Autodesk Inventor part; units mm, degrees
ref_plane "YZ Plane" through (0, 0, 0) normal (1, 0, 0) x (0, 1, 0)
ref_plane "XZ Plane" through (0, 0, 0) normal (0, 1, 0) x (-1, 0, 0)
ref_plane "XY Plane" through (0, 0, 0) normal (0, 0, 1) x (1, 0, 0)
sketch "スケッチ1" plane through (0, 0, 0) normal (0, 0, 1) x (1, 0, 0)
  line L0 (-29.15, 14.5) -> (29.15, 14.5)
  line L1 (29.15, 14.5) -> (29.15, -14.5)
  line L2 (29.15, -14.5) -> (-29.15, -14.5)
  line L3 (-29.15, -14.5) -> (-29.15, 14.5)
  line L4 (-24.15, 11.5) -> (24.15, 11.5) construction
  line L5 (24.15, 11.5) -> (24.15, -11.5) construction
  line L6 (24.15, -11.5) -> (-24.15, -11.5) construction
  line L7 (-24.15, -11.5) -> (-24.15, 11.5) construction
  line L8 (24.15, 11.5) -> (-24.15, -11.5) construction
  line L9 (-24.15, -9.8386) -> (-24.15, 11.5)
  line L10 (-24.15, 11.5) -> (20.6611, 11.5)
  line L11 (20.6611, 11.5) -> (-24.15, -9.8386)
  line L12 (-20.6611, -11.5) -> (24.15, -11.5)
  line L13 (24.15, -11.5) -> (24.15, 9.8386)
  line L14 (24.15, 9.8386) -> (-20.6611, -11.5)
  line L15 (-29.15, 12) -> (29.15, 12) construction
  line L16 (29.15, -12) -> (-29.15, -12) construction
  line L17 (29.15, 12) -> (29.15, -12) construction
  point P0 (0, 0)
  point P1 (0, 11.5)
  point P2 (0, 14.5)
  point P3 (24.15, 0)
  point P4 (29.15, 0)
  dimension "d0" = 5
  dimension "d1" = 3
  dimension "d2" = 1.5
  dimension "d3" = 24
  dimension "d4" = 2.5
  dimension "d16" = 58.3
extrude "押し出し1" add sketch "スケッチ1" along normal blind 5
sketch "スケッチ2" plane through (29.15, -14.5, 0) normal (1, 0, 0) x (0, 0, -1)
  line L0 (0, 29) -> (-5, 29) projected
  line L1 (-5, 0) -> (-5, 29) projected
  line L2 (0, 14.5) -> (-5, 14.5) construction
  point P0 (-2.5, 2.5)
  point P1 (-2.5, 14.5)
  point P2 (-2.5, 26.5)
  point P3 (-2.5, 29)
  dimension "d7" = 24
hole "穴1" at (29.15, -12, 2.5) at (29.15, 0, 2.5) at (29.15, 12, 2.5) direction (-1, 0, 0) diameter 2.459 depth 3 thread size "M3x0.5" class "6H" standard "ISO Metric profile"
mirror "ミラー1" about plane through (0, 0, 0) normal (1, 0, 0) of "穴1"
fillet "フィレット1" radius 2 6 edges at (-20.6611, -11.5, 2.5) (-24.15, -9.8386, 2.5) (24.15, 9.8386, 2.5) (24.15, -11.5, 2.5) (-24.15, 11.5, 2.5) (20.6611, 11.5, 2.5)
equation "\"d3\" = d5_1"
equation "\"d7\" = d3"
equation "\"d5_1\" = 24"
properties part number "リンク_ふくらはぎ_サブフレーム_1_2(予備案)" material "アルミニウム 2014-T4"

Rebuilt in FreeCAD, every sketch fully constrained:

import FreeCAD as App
import Part
import Sketcher

V = App.Vector


def edges_at(feature, points):
    """Names of the edges that pass closest to the given points."""
    edges = feature.Shape.Edges
    near = lambda p: min(range(len(edges)), key=lambda i: edges[i].distToShape(Part.Vertex(*p))[0])
    return sorted({f"Edge{near(p) + 1}" for p in points})


def add_polygon(sketch, points):
    """Adds a closed chain of lines whose ends are joined by coincident constraints."""
    first, n = sketch.GeometryCount, len(points)
    for a, b in zip(points, points[1:] + points[:1]):
        sketch.addGeometry(Part.LineSegment(App.Vector(*a, 0), App.Vector(*b, 0)), False)
    for i in range(n):
        sketch.addConstraint(Sketcher.Constraint("Coincident", first + i, 2, first + (i + 1) % n, 1))

doc = App.newDocument("Part")
params = doc.addObject("Spreadsheet::Sheet", "Params")
for row, (alias, value) in enumerate([
    ("sketch1_width", "58.3 mm"),
    ("sketch1_height", "29 mm"),
    ("pad1_length", "5 mm"),
    ("hole_diameter", "2.459 mm"),
    ("hole_depth", "3 mm"),
    ("fillet_radius", "2 mm"),
], start=1):
    params.set(f"A{row}", alias)
    params.set(f"B{row}", "=" + value)
    params.setAlias(f"B{row}", alias)

body = doc.addObject("PartDesign::Body", "Body")

# Sketch on XY plane
sketch1 = doc.addObject("Sketcher::SketchObject", "Sketch")
body.addObject(sketch1)
sketch1.AttachmentSupport = (doc.XY_Plane, [""])
sketch1.MapMode = "FlatFace"
add_polygon(sketch1, [(29, 14), (-29, 14), (-29, -14), (29, -14)])  # lines 0-3
add_polygon(sketch1, [(24, -12), (-21, -12), (24, 10)])  # lines 4-6
add_polygon(sketch1, [(21, 12), (-24, -10), (-24, 12)])  # lines 7-9
sketch1.addConstraint(Sketcher.Constraint("Horizontal", 0))
sketch1.addConstraint(Sketcher.Constraint("Vertical", 1))
sketch1.addConstraint(Sketcher.Constraint("Horizontal", 2))
sketch1.addConstraint(Sketcher.Constraint("Vertical", 3))
sketch1.addConstraint(Sketcher.Constraint("Horizontal", 4))
sketch1.addConstraint(Sketcher.Constraint("Vertical", 6))
sketch1.addConstraint(Sketcher.Constraint("Vertical", 8))
sketch1.addConstraint(Sketcher.Constraint("Horizontal", 9))
sketch1.addConstraint(Sketcher.Constraint("Symmetric", 0, 2, 2, 2, -1, 1))
sketch1.addConstraint(Sketcher.Constraint("Symmetric", 5, 2, 7, 2, -1, 1))
sketch1.addConstraint(Sketcher.Constraint("Symmetric", 4, 2, 9, 2, -1, 1))
sketch1.addConstraint(Sketcher.Constraint("DistanceX", 0, 2, 0, 1, 58.3))
sketch1.addConstraint(Sketcher.Constraint("DistanceY", 1, 2, 4, 2, 3.0))
sketch1.addConstraint(Sketcher.Constraint("DistanceX", 5, 2, 3, 2, 5.0))
sketch1.addConstraint(Sketcher.Constraint("DistanceY", 1, 2, 1, 1, 29.0))
sketch1.addConstraint(Sketcher.Constraint("DistanceX", 4, 2, 4, 1, 44.811))
sketch1.addConstraint(Sketcher.Constraint("DistanceY", 6, 2, 6, 1, 21.3386))
sketch1.setExpression("Constraints[21]", "Params.sketch1_width")
sketch1.setExpression("Constraints[24]", "Params.sketch1_height")
pad1 = doc.addObject("PartDesign::Pad", "Pad")
body.addObject(pad1)
pad1.Profile = sketch1
pad1.setExpression("Length", "Params.pad1_length")

# Sketch on YZ plane
sketch2 = doc.addObject("Sketcher::SketchObject", "Sketch001")
body.addObject(sketch2)
sketch2.AttachmentSupport = (doc.YZ_Plane, [""])
sketch2.MapMode = "FlatFace"
sketch2.AttachmentOffset = App.Placement(V(0, 0, 29.15), App.Rotation())
sketch2.addGeometry(Part.Circle(V(-12, 2.5, 0), V(0, 0, 1), 1.2), False)
sketch2.addGeometry(Part.Circle(V(0, 2.5, 0), V(0, 0, 1), 1.2), False)
sketch2.addGeometry(Part.Circle(V(12, 2.5, 0), V(0, 0, 1), 1.2), False)
sketch2.addConstraint(Sketcher.Constraint("Equal", 0, 1))
sketch2.addConstraint(Sketcher.Constraint("Equal", 1, 2))
sketch2.addConstraint(Sketcher.Constraint("Symmetric", 0, 3, 2, 3, -2))
sketch2.addConstraint(Sketcher.Constraint("PointOnObject", 1, 3, -2))
sketch2.addConstraint(Sketcher.Constraint("Horizontal", 0, 3, 1, 3))
sketch2.addConstraint(Sketcher.Constraint("Diameter", 0, 2.459))
sketch2.addConstraint(Sketcher.Constraint("DistanceX", 0, 3, -1, 1, 12.0))
sketch2.addConstraint(Sketcher.Constraint("DistanceY", -1, 1, 0, 3, 2.5))
doc.recompute()
hole = doc.addObject("PartDesign::Hole", "Hole")
body.addObject(hole)
hole.Profile = sketch2
hole.ThreadType = "None"
hole.setExpression("Diameter", "Params.hole_diameter")
hole.DepthType = "Dimension"
hole.setExpression("Depth", "Params.hole_depth")
hole.DrillPoint = "Flat"
doc.recompute()

mirrored = doc.addObject("PartDesign::Mirrored", "Mirrored")
body.addObject(mirrored)
mirrored.Originals = [hole]
mirrored.MirrorPlane = (doc.YZ_Plane, [""])
body.Tip = mirrored
doc.recompute()

fillet = doc.addObject("PartDesign::Fillet", "Fillet")
body.addObject(fillet)
fillet.Base = (mirrored, edges_at(mirrored, [
    (-20.661, -11.5, 2.5),
    (-24.15, -9.839, 2.5),
    (24.15, 9.839, 2.5),
    (24.15, -11.5, 2.5),
    (-24.15, 11.5, 2.5),
    (20.661, 11.5, 2.5),
]))
fillet.setExpression("Radius", "Params.fillet_radius")

doc.recompute()
